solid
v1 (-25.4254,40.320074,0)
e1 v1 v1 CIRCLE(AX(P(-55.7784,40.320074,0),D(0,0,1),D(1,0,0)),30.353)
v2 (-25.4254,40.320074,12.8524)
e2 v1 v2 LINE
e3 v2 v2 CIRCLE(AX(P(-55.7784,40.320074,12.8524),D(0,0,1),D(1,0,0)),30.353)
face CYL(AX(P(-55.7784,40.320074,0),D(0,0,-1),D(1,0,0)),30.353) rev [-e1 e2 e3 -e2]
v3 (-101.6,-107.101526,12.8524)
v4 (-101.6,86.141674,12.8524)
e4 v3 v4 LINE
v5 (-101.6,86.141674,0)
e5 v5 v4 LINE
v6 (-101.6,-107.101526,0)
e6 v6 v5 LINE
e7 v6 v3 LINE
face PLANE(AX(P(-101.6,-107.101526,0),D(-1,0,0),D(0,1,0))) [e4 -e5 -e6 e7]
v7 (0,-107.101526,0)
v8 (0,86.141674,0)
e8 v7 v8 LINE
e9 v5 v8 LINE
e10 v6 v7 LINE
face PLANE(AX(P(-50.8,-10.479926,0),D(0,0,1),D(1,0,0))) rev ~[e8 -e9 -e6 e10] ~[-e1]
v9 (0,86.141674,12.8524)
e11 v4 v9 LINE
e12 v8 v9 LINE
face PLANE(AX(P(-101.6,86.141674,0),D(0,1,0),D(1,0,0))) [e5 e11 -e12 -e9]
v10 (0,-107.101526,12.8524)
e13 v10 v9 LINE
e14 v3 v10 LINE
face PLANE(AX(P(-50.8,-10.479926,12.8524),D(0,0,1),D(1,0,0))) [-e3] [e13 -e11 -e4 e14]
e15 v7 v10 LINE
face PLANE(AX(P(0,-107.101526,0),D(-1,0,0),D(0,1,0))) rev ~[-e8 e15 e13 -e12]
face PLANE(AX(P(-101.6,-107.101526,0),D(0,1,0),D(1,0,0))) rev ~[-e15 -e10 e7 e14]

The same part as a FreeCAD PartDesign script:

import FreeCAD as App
import Part
import Sketcher

V = App.Vector
Q = App.Units.Quantity


def add_polygon(sketch, points):
    """Adds a closed chain of lines whose ends are joined by coincident constraints."""
    first, n = sketch.GeometryCount, len(points)
    for a, b in zip(points, points[1:] + points[:1]):
        sketch.addGeometry(Part.LineSegment(App.Vector(*a, 0), App.Vector(*b, 0)), False)
    for i in range(n):
        sketch.addConstraint(Sketcher.Constraint("Coincident", first + i, 2, first + (i + 1) % n, 1))

doc = App.newDocument("Part")
body = doc.addObject("PartDesign::Body", "Body")

sketch1 = body.newObject("Sketcher::SketchObject", "Sketch")
sketch1.AttachmentSupport = (doc.getObject("XY_Plane"), [""])
sketch1.MapMode = "FlatFace"
add_polygon(sketch1, [(-101.6, 86.141674), (-101.6, -107.101526), (0, -107.101526), (0, 86.141674)])
sketch1.addGeometry(Part.Circle(V(-55.7784, 40.320074, 0), V(0, 0, 1), 30.353), False)
sketch1.addConstraint([
    Sketcher.Constraint("Vertical", 0),
    Sketcher.Constraint("Horizontal", 1),
    Sketcher.Constraint("Vertical", 2),
    Sketcher.Constraint("Horizontal", 3),
    Sketcher.Constraint("PointOnObject", 1, 2, -2),
    Sketcher.Constraint("Diameter", 4, Q("2.39 in")),
    Sketcher.Constraint("DistanceX", 1, 1, 1, 2, Q("4 in")),
    Sketcher.Constraint("DistanceY", 0, 2, 0, 1, Q("7.608 in")),
    Sketcher.Constraint("DistanceX", 4, 3, -1, 1, Q("2.196 in")),
    Sketcher.Constraint("DistanceY", 0, 2, 4, 3, Q("5.804 in")),
    Sketcher.Constraint("DistanceY", -1, 1, 4, 3, 40.320074),
])
pad1 = body.newObject("PartDesign::Pad", "Pad")
pad1.Profile = sketch1
pad1.Length = Q("0.506 in")

doc.recompute()
